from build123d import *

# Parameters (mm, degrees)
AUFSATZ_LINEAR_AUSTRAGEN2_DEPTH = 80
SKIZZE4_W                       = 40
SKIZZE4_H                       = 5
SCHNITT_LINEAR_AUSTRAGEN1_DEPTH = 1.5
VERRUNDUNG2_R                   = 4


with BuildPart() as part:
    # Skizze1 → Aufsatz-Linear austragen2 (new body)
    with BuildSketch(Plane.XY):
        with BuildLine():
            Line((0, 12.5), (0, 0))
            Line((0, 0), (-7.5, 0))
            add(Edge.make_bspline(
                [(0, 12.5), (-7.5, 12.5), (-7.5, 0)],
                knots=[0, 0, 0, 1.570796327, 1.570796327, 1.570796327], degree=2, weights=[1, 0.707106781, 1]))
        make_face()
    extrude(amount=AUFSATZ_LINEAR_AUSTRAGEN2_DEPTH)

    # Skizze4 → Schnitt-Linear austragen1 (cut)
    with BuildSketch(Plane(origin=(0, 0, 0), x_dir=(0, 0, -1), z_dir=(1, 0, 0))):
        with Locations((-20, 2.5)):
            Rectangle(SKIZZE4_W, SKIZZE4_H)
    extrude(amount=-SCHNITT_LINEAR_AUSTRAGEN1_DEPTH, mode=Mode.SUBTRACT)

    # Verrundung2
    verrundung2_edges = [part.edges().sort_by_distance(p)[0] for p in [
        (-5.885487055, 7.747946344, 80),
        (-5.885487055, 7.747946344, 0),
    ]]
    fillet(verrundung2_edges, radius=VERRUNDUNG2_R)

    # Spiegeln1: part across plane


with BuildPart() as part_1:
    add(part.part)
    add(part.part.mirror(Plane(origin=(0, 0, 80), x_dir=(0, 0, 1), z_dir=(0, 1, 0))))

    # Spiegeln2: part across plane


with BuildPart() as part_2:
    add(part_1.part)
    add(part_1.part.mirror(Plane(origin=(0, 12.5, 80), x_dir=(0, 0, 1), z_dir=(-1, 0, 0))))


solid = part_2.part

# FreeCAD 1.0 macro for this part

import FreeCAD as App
import Part
import Sketcher
Q = App.Units.Quantity


def edges_at(feature, points):
    """Names of the edges that pass closest to the given points."""
    edges = feature.Shape.Edges
    near = lambda p: min(range(len(edges)), key=lambda i: edges[i].distToShape(Part.Vertex(*p))[0])
    return sorted({f"Edge{near(p) + 1}" for p in points})


def add_polygon(sketch, points):
    """Adds a closed chain of lines whose ends are joined by coincident constraints."""
    first, n = sketch.GeometryCount, len(points)
    for a, b in zip(points, points[1:] + points[:1]):
        sketch.addGeometry(Part.LineSegment(App.Vector(*a, 0), App.Vector(*b, 0)), False)
    for i in range(n):
        sketch.addConstraint(Sketcher.Constraint("Coincident", first + i, 2, first + (i + 1) % n, 1))

doc = App.newDocument("Part")
body = doc.addObject("PartDesign::Body", "Body")

sketch1 = body.newObject("Sketcher::SketchObject", "Sketch")
sketch1.AttachmentSupport = (doc.getObject("XY_Plane"), [""])
sketch1.MapMode = "FlatFace"
sketch1.addGeometry(Part.LineSegment(App.Vector(0, 0, 0), App.Vector(0, 12.5, 0)), False)
sketch1.addGeometry(Part.BSplineCurve([App.Vector(0, 12.5, 0), App.Vector(-7.5, 12.5, 0), App.Vector(-7.5, 0, 0)], [3, 3], [0, 1.570796327], False, 2, [1, 0.707106781, 1], False), False)
sketch1.addGeometry(Part.LineSegment(App.Vector(-7.5, 0, 0), App.Vector(0, 0, 0)), False)
sketch1.addConstraint(Sketcher.Constraint("Block", 1))
sketch1.addConstraint(Sketcher.Constraint("Coincident", 0, 2, 1, 1))
sketch1.addConstraint(Sketcher.Constraint("Coincident", 1, 2, 2, 1))
sketch1.addConstraint(Sketcher.Constraint("Coincident", 2, 2, 0, 1))
sketch1.addConstraint(Sketcher.Constraint("Vertical", 0))
sketch1.addConstraint(Sketcher.Constraint("Horizontal", 2))
pad1 = body.newObject("PartDesign::Pad", "Pad")
pad1.Profile = sketch1
pad1.Length = 80

sketch2 = body.newObject("Sketcher::SketchObject", "Sketch001")
sketch2.AttachmentSupport = (doc.getObject("YZ_Plane"), [""])
sketch2.MapMode = "FlatFace"
add_polygon(sketch2, [(5, 40), (0, 40), (0, 0), (5, 0)])
sketch2.addConstraint(Sketcher.Constraint("Horizontal", 0))
sketch2.addConstraint(Sketcher.Constraint("Vertical", 1))
sketch2.addConstraint(Sketcher.Constraint("Horizontal", 2))
sketch2.addConstraint(Sketcher.Constraint("Vertical", 3))
sketch2.addConstraint(Sketcher.Constraint("Coincident", 1, 2, -1, 1))
sketch2.addConstraint(Sketcher.Constraint("DistanceX", 0, 2, 0, 1, Q("5 mm")))
sketch2.addConstraint(Sketcher.Constraint("DistanceY", 1, 2, 1, 1, Q("40 mm")))
pocket1 = body.newObject("PartDesign::Pocket", "Pocket")
pocket1.Profile = sketch2
pocket1.Length = 1.5
doc.recompute()

fillet = body.newObject("PartDesign::Fillet", "Fillet")
fillet.Base = (pocket1, edges_at(pocket1, [(-5.885, 7.748, 80), (-5.885, 7.748, 0)]))
fillet.Radius = 4
body2 = doc.addObject("PartDesign::Body", "Body001")
doc.recompute()

body2.BaseFeature = body
doc.recompute()

mirroring = doc.addObject("Part::Mirroring", "Mirroring")
mirroring.Source = body
mirroring.Base = App.Vector(0, 0, 80)
mirroring.Normal = App.Vector(0, 1, 0)
body3 = doc.addObject("PartDesign::Body", "Body002")
body3.BaseFeature = mirroring
boolean = body2.newObject("PartDesign::Boolean", "Boolean")
boolean.Type = "Fuse"
boolean.addObjects([body3])
doc.recompute()
body4 = doc.addObject("PartDesign::Body", "Body003")
doc.recompute()

body4.BaseFeature = body2
doc.recompute()

mirroring2 = doc.addObject("Part::Mirroring", "Mirroring001")
mirroring2.Source = body2
mirroring2.Base = App.Vector(0, 12.5, 80)
mirroring2.Normal = App.Vector(-1, 0, 0)
body5 = doc.addObject("PartDesign::Body", "Body004")
body5.BaseFeature = mirroring2
boolean2 = body4.newObject("PartDesign::Boolean", "Boolean001")
boolean2.Type = "Fuse"
boolean2.addObjects([body5])
doc.recompute()
mirroring.Visibility = False
mirroring2.Visibility = False

doc.recompute()
